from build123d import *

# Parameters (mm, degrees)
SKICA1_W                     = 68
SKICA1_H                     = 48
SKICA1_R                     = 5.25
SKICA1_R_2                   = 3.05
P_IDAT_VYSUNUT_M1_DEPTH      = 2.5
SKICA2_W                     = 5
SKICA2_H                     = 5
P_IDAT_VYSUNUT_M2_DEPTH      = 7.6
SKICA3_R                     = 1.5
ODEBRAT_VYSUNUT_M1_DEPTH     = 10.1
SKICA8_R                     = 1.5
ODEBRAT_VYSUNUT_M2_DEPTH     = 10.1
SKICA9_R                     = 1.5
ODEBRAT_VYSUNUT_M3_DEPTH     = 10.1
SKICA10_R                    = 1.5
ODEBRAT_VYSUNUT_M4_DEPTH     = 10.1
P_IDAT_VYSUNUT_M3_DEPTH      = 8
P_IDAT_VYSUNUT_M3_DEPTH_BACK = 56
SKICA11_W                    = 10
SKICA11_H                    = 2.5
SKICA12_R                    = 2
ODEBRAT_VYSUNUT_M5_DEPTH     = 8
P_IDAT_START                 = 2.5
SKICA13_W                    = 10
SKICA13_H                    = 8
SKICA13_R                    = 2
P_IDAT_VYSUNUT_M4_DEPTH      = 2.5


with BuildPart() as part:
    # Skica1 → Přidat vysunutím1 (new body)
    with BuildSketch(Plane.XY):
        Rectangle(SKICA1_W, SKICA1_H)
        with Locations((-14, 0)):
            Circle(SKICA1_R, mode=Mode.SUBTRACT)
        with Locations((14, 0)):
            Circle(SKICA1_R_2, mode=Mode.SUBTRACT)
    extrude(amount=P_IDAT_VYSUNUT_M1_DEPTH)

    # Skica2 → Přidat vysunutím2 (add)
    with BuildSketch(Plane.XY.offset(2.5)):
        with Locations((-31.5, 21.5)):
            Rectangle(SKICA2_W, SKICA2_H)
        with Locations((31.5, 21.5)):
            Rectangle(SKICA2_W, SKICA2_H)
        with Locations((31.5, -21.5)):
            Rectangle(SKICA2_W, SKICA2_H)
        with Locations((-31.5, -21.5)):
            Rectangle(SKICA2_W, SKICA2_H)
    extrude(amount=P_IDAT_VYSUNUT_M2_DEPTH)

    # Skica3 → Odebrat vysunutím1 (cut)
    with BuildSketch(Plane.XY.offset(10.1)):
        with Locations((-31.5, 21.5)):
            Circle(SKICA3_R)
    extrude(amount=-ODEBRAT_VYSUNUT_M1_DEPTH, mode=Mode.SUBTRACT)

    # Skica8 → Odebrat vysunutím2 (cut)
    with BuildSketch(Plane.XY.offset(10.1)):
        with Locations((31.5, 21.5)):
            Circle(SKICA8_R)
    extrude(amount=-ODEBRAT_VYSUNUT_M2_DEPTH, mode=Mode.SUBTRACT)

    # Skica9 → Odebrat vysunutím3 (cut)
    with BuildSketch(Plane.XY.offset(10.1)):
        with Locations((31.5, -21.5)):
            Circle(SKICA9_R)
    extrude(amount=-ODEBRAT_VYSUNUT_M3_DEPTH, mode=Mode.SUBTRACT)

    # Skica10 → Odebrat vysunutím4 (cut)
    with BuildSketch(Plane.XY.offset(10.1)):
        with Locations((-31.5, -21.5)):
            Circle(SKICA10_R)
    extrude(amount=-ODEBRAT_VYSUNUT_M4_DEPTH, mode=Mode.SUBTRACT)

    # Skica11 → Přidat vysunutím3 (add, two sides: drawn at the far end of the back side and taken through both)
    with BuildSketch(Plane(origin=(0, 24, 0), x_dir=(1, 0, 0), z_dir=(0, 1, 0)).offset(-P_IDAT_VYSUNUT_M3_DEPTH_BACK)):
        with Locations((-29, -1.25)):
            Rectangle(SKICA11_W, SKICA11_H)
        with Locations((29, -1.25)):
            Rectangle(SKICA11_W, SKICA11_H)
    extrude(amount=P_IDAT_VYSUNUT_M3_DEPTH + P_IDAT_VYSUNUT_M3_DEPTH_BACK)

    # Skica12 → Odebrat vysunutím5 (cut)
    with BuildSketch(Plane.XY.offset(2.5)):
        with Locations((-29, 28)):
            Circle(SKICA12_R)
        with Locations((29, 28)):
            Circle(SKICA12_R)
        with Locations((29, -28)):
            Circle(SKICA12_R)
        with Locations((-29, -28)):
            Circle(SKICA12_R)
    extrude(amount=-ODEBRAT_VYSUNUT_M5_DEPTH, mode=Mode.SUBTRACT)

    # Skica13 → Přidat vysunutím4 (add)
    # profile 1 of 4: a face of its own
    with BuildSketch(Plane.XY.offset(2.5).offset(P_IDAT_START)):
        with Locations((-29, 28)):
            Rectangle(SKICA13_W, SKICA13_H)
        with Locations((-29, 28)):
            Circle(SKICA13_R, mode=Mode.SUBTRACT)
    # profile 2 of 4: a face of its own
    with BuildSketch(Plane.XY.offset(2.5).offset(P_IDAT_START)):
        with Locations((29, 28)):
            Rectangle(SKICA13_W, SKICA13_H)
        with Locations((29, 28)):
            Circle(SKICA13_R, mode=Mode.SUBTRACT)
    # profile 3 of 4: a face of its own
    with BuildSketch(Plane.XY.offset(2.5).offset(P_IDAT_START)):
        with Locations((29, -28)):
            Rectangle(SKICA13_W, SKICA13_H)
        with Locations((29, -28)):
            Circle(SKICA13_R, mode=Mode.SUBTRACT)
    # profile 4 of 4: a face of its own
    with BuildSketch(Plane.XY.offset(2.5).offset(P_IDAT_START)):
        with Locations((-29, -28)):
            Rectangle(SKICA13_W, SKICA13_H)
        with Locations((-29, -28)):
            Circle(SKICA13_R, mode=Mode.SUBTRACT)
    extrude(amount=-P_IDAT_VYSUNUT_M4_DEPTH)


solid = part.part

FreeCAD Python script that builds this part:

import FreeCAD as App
import Part
import Sketcher

V = App.Vector


def add_polygon(sketch, points):
    """Adds a closed chain of lines whose ends are joined by coincident constraints."""
    first, n = sketch.GeometryCount, len(points)
    for a, b in zip(points, points[1:] + points[:1]):
        sketch.addGeometry(Part.LineSegment(App.Vector(*a, 0), App.Vector(*b, 0)), False)
    for i in range(n):
        sketch.addConstraint(Sketcher.Constraint("Coincident", first + i, 2, first + (i + 1) % n, 1))

doc = App.newDocument("Part")
body = doc.addObject("PartDesign::Body", "Body")

# Sketch on XY plane
sketch1 = body.newObject("Sketcher::SketchObject", "Sketch")
sketch1.AttachmentSupport = (doc.getObject("XY_Plane"), [""])
sketch1.MapMode = "FlatFace"
add_polygon(sketch1, [(-34, 24), (-34, -24), (34, -24), (34, 24)])  # lines 0-3
sketch1.addGeometry(Part.Circle(V(-14, 0, 0), V(0, 0, 1), 5.2), False)  # 4
sketch1.addGeometry(Part.Circle(V(14, 0, 0), V(0, 0, 1), 3), False)  # 5
sketch1.addConstraint(Sketcher.Constraint("Vertical", 0))
sketch1.addConstraint(Sketcher.Constraint("Horizontal", 1))
sketch1.addConstraint(Sketcher.Constraint("Vertical", 2))
sketch1.addConstraint(Sketcher.Constraint("Horizontal", 3))
sketch1.addConstraint(Sketcher.Constraint("Symmetric", 4, 3, 5, 3, -1, 1))
sketch1.addConstraint(Sketcher.Constraint("Symmetric", 0, 2, 2, 2, -1, 1))
sketch1.addConstraint(Sketcher.Constraint("PointOnObject", 4, 3, -1))
sketch1.addConstraint(Sketcher.Constraint("Diameter", 4, 10.5))
sketch1.addConstraint(Sketcher.Constraint("Diameter", 5, 6.1))
sketch1.addConstraint(Sketcher.Constraint("DistanceX", 1, 1, 1, 2, 68.0))
sketch1.addConstraint(Sketcher.Constraint("DistanceY", 0, 2, 0, 1, 48.0))
sketch1.addConstraint(Sketcher.Constraint("DistanceX", 4, 3, -1, 1, 14.0))
pad1 = body.newObject("PartDesign::Pad", "Pad")
pad1.Profile = sketch1
pad1.Length = 2.5

# Sketch on XY plane
sketch2 = body.newObject("Sketcher::SketchObject", "Sketch001")
sketch2.AttachmentSupport = (doc.getObject("XY_Plane"), [""])
sketch2.MapMode = "FlatFace"
sketch2.AttachmentOffset = App.Placement(V(0, 0, 2.5), App.Rotation())
add_polygon(sketch2, [(-34, 24), (-34, 19), (-29, 19), (-29, 24)])  # lines 0-3
add_polygon(sketch2, [(29, 24), (29, 19), (34, 19), (34, 24)])  # lines 4-7
add_polygon(sketch2, [(29, -19), (29, -24), (34, -24), (34, -19)])  # lines 8-11
add_polygon(sketch2, [(-34, -19), (-34, -24), (-29, -24), (-29, -19)])  # lines 12-15
sketch2.addConstraint(Sketcher.Constraint("Vertical", 0))
sketch2.addConstraint(Sketcher.Constraint("Horizontal", 1))
sketch2.addConstraint(Sketcher.Constraint("Vertical", 2))
sketch2.addConstraint(Sketcher.Constraint("Horizontal", 3))
sketch2.addConstraint(Sketcher.Constraint("Vertical", 4))
sketch2.addConstraint(Sketcher.Constraint("Horizontal", 5))
sketch2.addConstraint(Sketcher.Constraint("Vertical", 6))
sketch2.addConstraint(Sketcher.Constraint("Horizontal", 7))
sketch2.addConstraint(Sketcher.Constraint("Vertical", 8))
sketch2.addConstraint(Sketcher.Constraint("Horizontal", 9))
sketch2.addConstraint(Sketcher.Constraint("Vertical", 10))
sketch2.addConstraint(Sketcher.Constraint("Horizontal", 11))
sketch2.addConstraint(Sketcher.Constraint("Vertical", 12))
sketch2.addConstraint(Sketcher.Constraint("Horizontal", 13))
sketch2.addConstraint(Sketcher.Constraint("Vertical", 14))
sketch2.addConstraint(Sketcher.Constraint("Horizontal", 15))
sketch2.addConstraint(Sketcher.Constraint("Symmetric", 2, 2, 8, 2, -1, 1))
sketch2.addConstraint(Sketcher.Constraint("Symmetric", 0, 2, 10, 2, -1, 1))
sketch2.addConstraint(Sketcher.Constraint("Symmetric", 6, 2, 12, 2, -1, 1))
sketch2.addConstraint(Sketcher.Constraint("Symmetric", 4, 2, 14, 2, -1, 1))
sketch2.addConstraint(Sketcher.Constraint("Symmetric", 1, 2, 4, 2, -2))
sketch2.addConstraint(Sketcher.Constraint("Symmetric", 3, 2, 6, 2, -2))
sketch2.addConstraint(Sketcher.Constraint("Equal", 15, 0))
sketch2.addConstraint(Sketcher.Constraint("DistanceX", 1, 1, 1, 2, 5.0))
sketch2.addConstraint(Sketcher.Constraint("DistanceX", 0, 2, -1, 1, 34.0))
sketch2.addConstraint(Sketcher.Constraint("DistanceY", -1, 1, 0, 2, 19.0))
pad2 = body.newObject("PartDesign::Pad", "Pad001")
pad2.Profile = sketch2
pad2.Length = 7.6

# Sketch on XY plane
sketch3 = body.newObject("Sketcher::SketchObject", "Sketch002")
sketch3.AttachmentSupport = (doc.getObject("XY_Plane"), [""])
sketch3.MapMode = "FlatFace"
sketch3.AttachmentOffset = App.Placement(V(0, 0, 10.1), App.Rotation())
sketch3.addGeometry(Part.Circle(V(-31.5, 21.5, 0), V(0, 0, 1), 1.5), False)
sketch3.addConstraint(Sketcher.Constraint("Diameter", 0, 3.0))
sketch3.addConstraint(Sketcher.Constraint("DistanceX", 0, 3, -1, 1, 31.5))
sketch3.addConstraint(Sketcher.Constraint("DistanceY", -1, 1, 0, 3, 21.5))
pocket1 = body.newObject("PartDesign::Pocket", "Pocket")
pocket1.Profile = sketch3
pocket1.Length = 10.1

# Sketch on XY plane
sketch4 = body.newObject("Sketcher::SketchObject", "Sketch003")
sketch4.AttachmentSupport = (doc.getObject("XY_Plane"), [""])
sketch4.MapMode = "FlatFace"
sketch4.AttachmentOffset = App.Placement(V(0, 0, 10.1), App.Rotation())
sketch4.addGeometry(Part.Circle(V(31.5, 21.5, 0), V(0, 0, 1), 1.5), False)
sketch4.addConstraint(Sketcher.Constraint("Diameter", 0, 3.0))
sketch4.addConstraint(Sketcher.Constraint("DistanceX", -1, 1, 0, 3, 31.5))
sketch4.addConstraint(Sketcher.Constraint("DistanceY", -1, 1, 0, 3, 21.5))
pocket2 = body.newObject("PartDesign::Pocket", "Pocket001")
pocket2.Profile = sketch4
pocket2.Length = 10.1

# Sketch on XY plane
sketch5 = body.newObject("Sketcher::SketchObject", "Sketch004")
sketch5.AttachmentSupport = (doc.getObject("XY_Plane"), [""])
sketch5.MapMode = "FlatFace"
sketch5.AttachmentOffset = App.Placement(V(0, 0, 10.1), App.Rotation())
sketch5.addGeometry(Part.Circle(V(31.5, -21.5, 0), V(0, 0, 1), 1.5), False)
sketch5.addConstraint(Sketcher.Constraint("Diameter", 0, 3.0))
sketch5.addConstraint(Sketcher.Constraint("DistanceX", -1, 1, 0, 3, 31.5))
sketch5.addConstraint(Sketcher.Constraint("DistanceY", 0, 3, -1, 1, 21.5))
pocket3 = body.newObject("PartDesign::Pocket", "Pocket002")
pocket3.Profile = sketch5
pocket3.Length = 10.1

# Sketch on XY plane
sketch6 = body.newObject("Sketcher::SketchObject", "Sketch005")
sketch6.AttachmentSupport = (doc.getObject("XY_Plane"), [""])
sketch6.MapMode = "FlatFace"
sketch6.AttachmentOffset = App.Placement(V(0, 0, 10.1), App.Rotation())
sketch6.addGeometry(Part.Circle(V(-31.5, -21.5, 0), V(0, 0, 1), 1.5), False)
sketch6.addConstraint(Sketcher.Constraint("Diameter", 0, 3.0))
sketch6.addConstraint(Sketcher.Constraint("DistanceX", 0, 3, -1, 1, 31.5))
sketch6.addConstraint(Sketcher.Constraint("DistanceY", 0, 3, -1, 1, 21.5))
pocket4 = body.newObject("PartDesign::Pocket", "Pocket003")
pocket4.Profile = sketch6
pocket4.Length = 10.1

# Sketch on XZ plane
sketch7 = body.newObject("Sketcher::SketchObject", "Sketch006")
sketch7.AttachmentSupport = (doc.getObject("XZ_Plane"), [""])
sketch7.MapMode = "FlatFace"
sketch7.AttachmentOffset = App.Placement(V(0, 0, -24), App.Rotation())
add_polygon(sketch7, [(-34, 0), (-34, 2.5), (-24, 2.5), (-24, 0)])  # lines 0-3
add_polygon(sketch7, [(24, 0), (24, 2.5), (34, 2.5), (34, 0)])  # lines 4-7
sketch7.addConstraint(Sketcher.Constraint("Vertical", 0))
sketch7.addConstraint(Sketcher.Constraint("Horizontal", 1))
sketch7.addConstraint(Sketcher.Constraint("Vertical", 2))
sketch7.addConstraint(Sketcher.Constraint("Horizontal", 3))
sketch7.addConstraint(Sketcher.Constraint("Vertical", 4))
sketch7.addConstraint(Sketcher.Constraint("Horizontal", 5))
sketch7.addConstraint(Sketcher.Constraint("Vertical", 6))
sketch7.addConstraint(Sketcher.Constraint("Horizontal", 7))
sketch7.addConstraint(Sketcher.Constraint("Symmetric", 3, 2, 6, 2, -1, 1))
sketch7.addConstraint(Sketcher.Constraint("Symmetric", 1, 2, 4, 2, -2))
sketch7.addConstraint(Sketcher.Constraint("PointOnObject", 2, 2, -1))
sketch7.addConstraint(Sketcher.Constraint("DistanceX", 1, 1, 1, 2, 10.0))
sketch7.addConstraint(Sketcher.Constraint("DistanceY", 0, 1, 0, 2, 2.5))
sketch7.addConstraint(Sketcher.Constraint("DistanceX", 0, 2, -1, 1, 34.0))
pad3 = body.newObject("PartDesign::Pad", "Pad002")
pad3.Profile = sketch7
pad3.Type = "TwoLengths"
pad3.Length = 8
pad3.Length2 = 56
pad3.Reversed = True

# Sketch on XY plane
sketch8 = body.newObject("Sketcher::SketchObject", "Sketch007")
sketch8.AttachmentSupport = (doc.getObject("XY_Plane"), [""])
sketch8.MapMode = "FlatFace"
sketch8.AttachmentOffset = App.Placement(V(0, 0, 2.5), App.Rotation())
sketch8.addGeometry(Part.Circle(V(-29, 28, 0), V(0, 0, 1), 2), False)
sketch8.addGeometry(Part.Circle(V(29, 28, 0), V(0, 0, 1), 2), False)
sketch8.addGeometry(Part.Circle(V(29, -28, 0), V(0, 0, 1), 2), False)
sketch8.addGeometry(Part.Circle(V(-29, -28, 0), V(0, 0, 1), 2), False)
sketch8.addConstraint(Sketcher.Constraint("Equal", 0, 1))
sketch8.addConstraint(Sketcher.Constraint("Equal", 1, 2))
sketch8.addConstraint(Sketcher.Constraint("Equal", 2, 3))
sketch8.addConstraint(Sketcher.Constraint("Symmetric", 0, 3, 2, 3, -1, 1))
sketch8.addConstraint(Sketcher.Constraint("Symmetric", 1, 3, 3, 3, -1, 1))
sketch8.addConstraint(Sketcher.Constraint("Symmetric", 0, 3, 1, 3, -2))
sketch8.addConstraint(Sketcher.Constraint("Diameter", 0, 4.0))
sketch8.addConstraint(Sketcher.Constraint("DistanceX", 0, 3, -1, 1, 29.0))
sketch8.addConstraint(Sketcher.Constraint("DistanceY", -1, 1, 0, 3, 28.0))
pocket5 = body.newObject("PartDesign::Pocket", "Pocket004")
pocket5.Profile = sketch8
pocket5.Length = 8

# Sketch on XY plane
sketch9 = body.newObject("Sketcher::SketchObject", "Sketch008")
sketch9.AttachmentSupport = (doc.getObject("XY_Plane"), [""])
sketch9.MapMode = "FlatFace"
sketch9.AttachmentOffset = App.Placement(V(0, 0, 5), App.Rotation())
add_polygon(sketch9, [(-34, 32), (-34, 24), (-24, 24), (-24, 32)])  # lines 0-3
sketch9.addGeometry(Part.Circle(V(-29, 28, 0), V(0, 0, 1), 2), False)  # 4
add_polygon(sketch9, [(24, 32), (24, 24), (34, 24), (34, 32)])  # lines 5-8
sketch9.addGeometry(Part.Circle(V(29, 28, 0), V(0, 0, 1), 2), False)  # 9
add_polygon(sketch9, [(24, -24), (24, -32), (34, -32), (34, -24)])  # lines 10-13
sketch9.addGeometry(Part.Circle(V(29, -28, 0), V(0, 0, 1), 2), False)  # 14
add_polygon(sketch9, [(-34, -24), (-34, -32), (-24, -32), (-24, -24)])  # lines 15-18
sketch9.addGeometry(Part.Circle(V(-29, -28, 0), V(0, 0, 1), 2), False)  # 19
sketch9.addConstraint(Sketcher.Constraint("Vertical", 0))
sketch9.addConstraint(Sketcher.Constraint("Horizontal", 1))
sketch9.addConstraint(Sketcher.Constraint("Vertical", 2))
sketch9.addConstraint(Sketcher.Constraint("Horizontal", 3))
sketch9.addConstraint(Sketcher.Constraint("Vertical", 5))
sketch9.addConstraint(Sketcher.Constraint("Horizontal", 6))
sketch9.addConstraint(Sketcher.Constraint("Vertical", 7))
sketch9.addConstraint(Sketcher.Constraint("Horizontal", 8))
sketch9.addConstraint(Sketcher.Constraint("Vertical", 10))
sketch9.addConstraint(Sketcher.Constraint("Horizontal", 11))
sketch9.addConstraint(Sketcher.Constraint("Vertical", 12))
sketch9.addConstraint(Sketcher.Constraint("Horizontal", 13))
sketch9.addConstraint(Sketcher.Constraint("Vertical", 15))
sketch9.addConstraint(Sketcher.Constraint("Horizontal", 16))
sketch9.addConstraint(Sketcher.Constraint("Vertical", 17))
sketch9.addConstraint(Sketcher.Constraint("Horizontal", 18))
sketch9.addConstraint(Sketcher.Constraint("Equal", 4, 9))
sketch9.addConstraint(Sketcher.Constraint("Equal", 9, 14))
sketch9.addConstraint(Sketcher.Constraint("Equal", 14, 19))
sketch9.addConstraint(Sketcher.Constraint("Symmetric", 4, 3, 14, 3, -1, 1))
sketch9.addConstraint(Sketcher.Constraint("Symmetric", 9, 3, 19, 3, -1, 1))
sketch9.addConstraint(Sketcher.Constraint("Symmetric", 2, 2, 10, 2, -1, 1))
sketch9.addConstraint(Sketcher.Constraint("Symmetric", 0, 2, 12, 2, -1, 1))
sketch9.addConstraint(Sketcher.Constraint("Symmetric", 7, 2, 15, 2, -1, 1))
sketch9.addConstraint(Sketcher.Constraint("Symmetric", 5, 2, 17, 2, -1, 1))
sketch9.addConstraint(Sketcher.Constraint("Symmetric", 4, 3, 9, 3, -2))
sketch9.addConstraint(Sketcher.Constraint("Symmetric", 1, 2, 5, 2, -2))
sketch9.addConstraint(Sketcher.Constraint("Symmetric", 3, 2, 7, 2, -2))
sketch9.addConstraint(Sketcher.Constraint("Diameter", 4, 4.0))
sketch9.addConstraint(Sketcher.Constraint("DistanceX", 1, 1, 1, 2, 10.0))
sketch9.addConstraint(Sketcher.Constraint("DistanceY", 0, 2, 0, 1, 8.0))
sketch9.addConstraint(Sketcher.Constraint("DistanceX", 4, 3, -1, 1, 29.0))
sketch9.addConstraint(Sketcher.Constraint("DistanceY", -1, 1, 4, 3, 28.0))
sketch9.addConstraint(Sketcher.Constraint("DistanceX", 0, 2, -1, 1, 34.0))
sketch9.addConstraint(Sketcher.Constraint("DistanceY", -1, 1, 0, 2, 24.0))
pad4 = body.newObject("PartDesign::Pad", "Pad003")
pad4.Profile = sketch9
pad4.Length = 2.5
pad4.Reversed = True

doc.recompute()
